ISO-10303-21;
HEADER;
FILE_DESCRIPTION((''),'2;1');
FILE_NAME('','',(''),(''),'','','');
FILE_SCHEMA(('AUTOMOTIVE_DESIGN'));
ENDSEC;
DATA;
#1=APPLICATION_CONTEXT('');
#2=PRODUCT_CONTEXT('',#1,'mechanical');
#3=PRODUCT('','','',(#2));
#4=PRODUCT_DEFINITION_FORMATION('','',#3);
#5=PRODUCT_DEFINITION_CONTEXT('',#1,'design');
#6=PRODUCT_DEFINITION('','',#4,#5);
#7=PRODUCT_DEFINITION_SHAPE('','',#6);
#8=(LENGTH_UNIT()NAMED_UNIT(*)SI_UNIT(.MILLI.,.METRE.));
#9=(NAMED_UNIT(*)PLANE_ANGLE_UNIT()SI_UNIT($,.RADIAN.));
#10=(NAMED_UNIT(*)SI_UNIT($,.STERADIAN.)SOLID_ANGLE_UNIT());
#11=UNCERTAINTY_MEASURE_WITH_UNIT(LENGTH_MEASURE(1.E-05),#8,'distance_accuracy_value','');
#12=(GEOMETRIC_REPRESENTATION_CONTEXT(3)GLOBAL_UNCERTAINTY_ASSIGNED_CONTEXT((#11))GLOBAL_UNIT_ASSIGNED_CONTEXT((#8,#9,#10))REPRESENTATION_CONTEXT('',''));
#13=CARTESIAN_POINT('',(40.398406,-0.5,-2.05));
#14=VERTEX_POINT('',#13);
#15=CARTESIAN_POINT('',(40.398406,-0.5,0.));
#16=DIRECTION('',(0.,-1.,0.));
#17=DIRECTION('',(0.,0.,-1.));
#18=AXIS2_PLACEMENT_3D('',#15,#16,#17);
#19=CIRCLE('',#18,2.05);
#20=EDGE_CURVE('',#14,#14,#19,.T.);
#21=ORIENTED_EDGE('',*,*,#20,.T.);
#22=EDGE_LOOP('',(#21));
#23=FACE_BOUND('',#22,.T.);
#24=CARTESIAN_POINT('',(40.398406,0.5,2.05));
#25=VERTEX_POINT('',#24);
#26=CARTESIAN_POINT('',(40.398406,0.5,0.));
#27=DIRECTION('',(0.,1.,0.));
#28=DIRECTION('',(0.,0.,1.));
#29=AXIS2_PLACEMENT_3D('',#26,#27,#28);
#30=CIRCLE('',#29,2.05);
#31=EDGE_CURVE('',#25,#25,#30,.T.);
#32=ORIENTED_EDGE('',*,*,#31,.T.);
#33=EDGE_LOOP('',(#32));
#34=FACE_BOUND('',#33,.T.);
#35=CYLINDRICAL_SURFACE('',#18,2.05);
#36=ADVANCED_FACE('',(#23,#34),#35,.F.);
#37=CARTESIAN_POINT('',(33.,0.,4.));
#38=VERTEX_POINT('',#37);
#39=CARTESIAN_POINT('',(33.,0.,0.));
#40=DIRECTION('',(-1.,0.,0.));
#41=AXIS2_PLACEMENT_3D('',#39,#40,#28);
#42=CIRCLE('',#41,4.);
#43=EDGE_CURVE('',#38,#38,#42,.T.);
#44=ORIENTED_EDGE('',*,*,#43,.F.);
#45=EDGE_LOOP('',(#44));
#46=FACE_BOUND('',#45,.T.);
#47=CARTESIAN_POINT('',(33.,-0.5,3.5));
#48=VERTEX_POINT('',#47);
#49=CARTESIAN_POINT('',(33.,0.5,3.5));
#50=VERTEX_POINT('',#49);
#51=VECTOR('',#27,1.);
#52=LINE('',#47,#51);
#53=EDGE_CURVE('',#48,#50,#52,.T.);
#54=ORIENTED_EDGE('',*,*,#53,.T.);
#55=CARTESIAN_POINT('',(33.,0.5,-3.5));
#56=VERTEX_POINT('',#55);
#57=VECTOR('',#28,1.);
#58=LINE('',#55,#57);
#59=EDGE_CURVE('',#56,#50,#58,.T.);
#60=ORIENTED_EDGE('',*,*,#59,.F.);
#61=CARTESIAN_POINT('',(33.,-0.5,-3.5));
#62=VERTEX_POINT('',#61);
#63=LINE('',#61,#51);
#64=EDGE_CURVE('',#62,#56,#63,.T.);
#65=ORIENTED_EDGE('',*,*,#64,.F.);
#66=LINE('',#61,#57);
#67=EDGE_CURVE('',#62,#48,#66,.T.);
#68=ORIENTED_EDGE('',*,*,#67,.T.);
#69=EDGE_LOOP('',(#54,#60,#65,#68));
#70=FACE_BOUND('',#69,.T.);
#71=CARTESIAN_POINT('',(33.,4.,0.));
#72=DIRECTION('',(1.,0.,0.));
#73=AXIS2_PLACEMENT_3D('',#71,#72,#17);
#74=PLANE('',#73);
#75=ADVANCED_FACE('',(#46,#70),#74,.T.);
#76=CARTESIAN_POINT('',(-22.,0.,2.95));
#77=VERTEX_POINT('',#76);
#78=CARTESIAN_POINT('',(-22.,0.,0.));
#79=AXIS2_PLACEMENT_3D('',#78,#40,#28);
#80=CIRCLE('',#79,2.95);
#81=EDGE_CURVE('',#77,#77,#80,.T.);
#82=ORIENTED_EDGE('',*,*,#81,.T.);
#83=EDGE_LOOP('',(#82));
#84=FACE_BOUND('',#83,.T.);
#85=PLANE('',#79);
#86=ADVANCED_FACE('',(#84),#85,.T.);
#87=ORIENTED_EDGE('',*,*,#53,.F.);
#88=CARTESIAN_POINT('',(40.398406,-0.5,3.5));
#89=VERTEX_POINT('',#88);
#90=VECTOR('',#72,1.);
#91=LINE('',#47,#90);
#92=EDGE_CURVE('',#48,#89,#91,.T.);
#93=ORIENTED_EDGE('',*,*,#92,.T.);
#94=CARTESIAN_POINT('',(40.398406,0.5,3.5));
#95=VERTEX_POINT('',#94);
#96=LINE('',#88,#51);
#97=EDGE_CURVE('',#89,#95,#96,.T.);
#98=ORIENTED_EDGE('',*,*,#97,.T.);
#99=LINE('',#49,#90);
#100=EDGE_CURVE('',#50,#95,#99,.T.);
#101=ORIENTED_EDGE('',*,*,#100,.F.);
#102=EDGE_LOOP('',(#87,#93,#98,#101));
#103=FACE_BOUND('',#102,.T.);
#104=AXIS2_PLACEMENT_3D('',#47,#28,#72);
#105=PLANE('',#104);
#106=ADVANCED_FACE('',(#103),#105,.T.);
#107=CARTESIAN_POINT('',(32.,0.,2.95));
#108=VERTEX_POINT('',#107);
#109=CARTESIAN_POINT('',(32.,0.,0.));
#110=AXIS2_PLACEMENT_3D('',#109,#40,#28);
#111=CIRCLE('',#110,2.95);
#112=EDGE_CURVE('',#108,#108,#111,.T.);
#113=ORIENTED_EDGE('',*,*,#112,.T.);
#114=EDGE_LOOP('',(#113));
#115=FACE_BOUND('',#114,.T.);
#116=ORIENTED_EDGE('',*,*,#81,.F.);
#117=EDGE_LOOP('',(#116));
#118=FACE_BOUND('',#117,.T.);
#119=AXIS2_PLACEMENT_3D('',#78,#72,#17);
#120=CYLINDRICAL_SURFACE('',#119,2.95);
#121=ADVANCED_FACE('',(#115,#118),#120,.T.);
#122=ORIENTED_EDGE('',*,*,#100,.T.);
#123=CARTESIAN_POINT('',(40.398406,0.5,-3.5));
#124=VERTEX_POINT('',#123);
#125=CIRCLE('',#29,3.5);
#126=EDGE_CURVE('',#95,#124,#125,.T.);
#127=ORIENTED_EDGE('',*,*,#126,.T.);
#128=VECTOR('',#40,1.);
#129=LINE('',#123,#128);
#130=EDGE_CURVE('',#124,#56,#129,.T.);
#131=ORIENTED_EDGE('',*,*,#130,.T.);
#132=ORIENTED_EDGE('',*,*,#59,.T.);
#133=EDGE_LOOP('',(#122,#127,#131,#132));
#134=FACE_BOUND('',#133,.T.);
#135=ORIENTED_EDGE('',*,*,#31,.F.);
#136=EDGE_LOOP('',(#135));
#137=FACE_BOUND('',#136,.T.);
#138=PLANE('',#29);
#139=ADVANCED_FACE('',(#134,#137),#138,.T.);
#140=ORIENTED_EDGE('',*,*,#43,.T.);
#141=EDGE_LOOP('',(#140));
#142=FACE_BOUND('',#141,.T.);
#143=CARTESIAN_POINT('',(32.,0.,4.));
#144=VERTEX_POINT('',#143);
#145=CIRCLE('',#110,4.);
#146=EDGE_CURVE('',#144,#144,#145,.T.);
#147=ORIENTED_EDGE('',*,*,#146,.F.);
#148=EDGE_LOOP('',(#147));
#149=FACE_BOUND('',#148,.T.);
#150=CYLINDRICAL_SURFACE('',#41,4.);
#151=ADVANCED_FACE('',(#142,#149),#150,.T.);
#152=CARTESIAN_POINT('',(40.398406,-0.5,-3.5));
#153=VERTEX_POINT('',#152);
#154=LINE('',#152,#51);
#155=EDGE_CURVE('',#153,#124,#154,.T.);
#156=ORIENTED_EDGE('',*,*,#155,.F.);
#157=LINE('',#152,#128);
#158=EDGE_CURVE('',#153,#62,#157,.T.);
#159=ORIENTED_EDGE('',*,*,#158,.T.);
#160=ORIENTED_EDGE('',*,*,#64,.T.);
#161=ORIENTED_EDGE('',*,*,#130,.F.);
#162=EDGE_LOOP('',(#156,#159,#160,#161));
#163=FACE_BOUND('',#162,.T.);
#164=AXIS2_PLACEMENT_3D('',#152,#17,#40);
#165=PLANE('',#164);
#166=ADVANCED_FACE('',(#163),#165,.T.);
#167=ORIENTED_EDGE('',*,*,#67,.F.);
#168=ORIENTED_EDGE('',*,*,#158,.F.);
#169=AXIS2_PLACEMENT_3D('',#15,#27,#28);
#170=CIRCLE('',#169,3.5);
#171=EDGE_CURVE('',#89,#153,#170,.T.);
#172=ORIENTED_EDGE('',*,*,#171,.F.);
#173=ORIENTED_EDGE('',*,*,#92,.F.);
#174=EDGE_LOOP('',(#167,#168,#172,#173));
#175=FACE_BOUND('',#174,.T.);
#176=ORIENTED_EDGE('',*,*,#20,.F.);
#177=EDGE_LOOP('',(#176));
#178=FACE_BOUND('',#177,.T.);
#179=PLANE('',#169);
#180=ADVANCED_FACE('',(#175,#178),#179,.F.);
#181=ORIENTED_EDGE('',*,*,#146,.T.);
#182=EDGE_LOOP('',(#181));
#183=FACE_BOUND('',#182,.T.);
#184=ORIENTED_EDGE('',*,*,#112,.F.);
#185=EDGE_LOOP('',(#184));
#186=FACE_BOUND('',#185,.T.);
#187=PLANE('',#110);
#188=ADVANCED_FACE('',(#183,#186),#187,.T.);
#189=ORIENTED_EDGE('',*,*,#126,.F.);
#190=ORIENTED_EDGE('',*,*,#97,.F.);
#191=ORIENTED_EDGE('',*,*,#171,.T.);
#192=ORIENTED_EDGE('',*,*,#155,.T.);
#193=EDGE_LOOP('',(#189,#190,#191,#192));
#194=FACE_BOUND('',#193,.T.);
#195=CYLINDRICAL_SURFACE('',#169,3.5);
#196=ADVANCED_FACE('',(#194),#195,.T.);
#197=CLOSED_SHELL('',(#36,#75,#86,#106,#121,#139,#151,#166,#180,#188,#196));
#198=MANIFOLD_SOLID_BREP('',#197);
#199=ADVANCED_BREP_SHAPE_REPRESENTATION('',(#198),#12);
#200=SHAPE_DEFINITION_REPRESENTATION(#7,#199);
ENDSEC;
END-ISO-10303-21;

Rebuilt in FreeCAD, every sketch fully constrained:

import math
import FreeCAD as App
import Part
import Sketcher
from FreeCAD import Vector
Q = App.Units.Quantity

doc = App.newDocument("Part")
body = doc.addObject("PartDesign::Body", "Body")

# Sketch on XY plane
sketch1 = body.newObject("Sketcher::SketchObject", "Sketch")
sketch1.AttachmentSupport = (doc.getObject("XY_Plane"), [""])
sketch1.MapMode = "FlatFace"
sketch1.addGeometry([
    Part.LineSegment(Vector(33, 4, 0), Vector(33, 0, 0)),
    Part.LineSegment(Vector(33, 0, 0), Vector(32, 0, 0)),
    Part.LineSegment(Vector(32, 0, 0), Vector(32, 4, 0)),
    Part.LineSegment(Vector(32, 4, 0), Vector(33, 4, 0)),
], False)
sketch1.addConstraint([
    Sketcher.Constraint("Coincident", 0, 2, 1, 1),
    Sketcher.Constraint("Coincident", 1, 2, 2, 1),
    Sketcher.Constraint("Coincident", 2, 2, 3, 1),
    Sketcher.Constraint("Coincident", 3, 2, 0, 1),
    Sketcher.Constraint("Vertical", 0),
    Sketcher.Constraint("Horizontal", 1),
    Sketcher.Constraint("Vertical", 2),
    Sketcher.Constraint("Horizontal", 3),
    Sketcher.Constraint("PointOnObject", 0, 2, -1),
    Sketcher.Constraint("DistanceX", 1, 2, 1, 1, Q("1 mm")),
    Sketcher.Constraint("DistanceY", 0, 2, 0, 1, Q("4 mm")),
    Sketcher.Constraint("DistanceX", -1, 1, 0, 2, Q("33 mm")),
])
revolution = body.newObject("PartDesign::Revolution", "Revolution")
revolution.Profile = sketch1
revolution.ReferenceAxis = (sketch1, ["H_Axis"])
revolution.Angle = 360

# Sketch on XZ plane
sketch2 = body.newObject("Sketcher::SketchObject", "Sketch001")
sketch2.AttachmentSupport = (doc.getObject("XZ_Plane"), [""])
sketch2.MapMode = "FlatFace"
sketch2.AttachmentOffset = App.Placement(Vector(0, 0, -0.5), App.Rotation())
sketch2.addGeometry([
    Part.LineSegment(Vector(33, -3.5, 0), Vector(33, 3.5, 0)),
    Part.LineSegment(Vector(33, 3.5, 0), Vector(40.4, 3.5, 0)),
    Part.ArcOfCircle(Part.Circle(Vector(40.4, 0, 0), Vector(0, 0, 1), 3.5), math.radians(-90), math.radians(90)),
    Part.LineSegment(Vector(40.4, -3.5, 0), Vector(33, -3.5, 0)),
], False)
sketch2.addConstraint([
    Sketcher.Constraint("Coincident", 0, 2, 1, 1),
    Sketcher.Constraint("Tangent", 1, 2, 2, 2),
    Sketcher.Constraint("Tangent", 2, 1, 3, 1),
    Sketcher.Constraint("Coincident", 3, 2, 0, 1),
    Sketcher.Constraint("Vertical", 0),
    Sketcher.Constraint("Horizontal", 1),
    Sketcher.Constraint("Horizontal", 3),
    Sketcher.Constraint("PointOnObject", 2, 3, -1),
    Sketcher.Constraint("Radius", 2, Q("3.5 mm")),
    Sketcher.Constraint("DistanceX", -1, 1, 0, 2, Q("33 mm")),
    Sketcher.Constraint("DistanceX", 1, 1, 1, 2, Q("7.398406 mm")),
])
pad1 = body.newObject("PartDesign::Pad", "Pad")
pad1.Profile = sketch2
pad1.Length = 1

# Sketch on YZ plane
sketch3 = body.newObject("Sketcher::SketchObject", "Sketch002")
sketch3.AttachmentSupport = (doc.getObject("YZ_Plane"), [""])
sketch3.MapMode = "FlatFace"
sketch3.AttachmentOffset = App.Placement(Vector(0, 0, 32), App.Rotation())
sketch3.addGeometry(Part.Circle(Vector(0, 0, 0), Vector(0, 0, 1), 3), False)
sketch3.addConstraint([
    Sketcher.Constraint("Coincident", 0, 3, -1, 1),
    Sketcher.Constraint("Diameter", 0, Q("5.9 mm")),
])
pad2 = body.newObject("PartDesign::Pad", "Pad001")
pad2.Profile = sketch3
pad2.Length = 54
pad2.Reversed = True

# Sketch on XZ plane
sketch4 = body.newObject("Sketcher::SketchObject", "Sketch003")
sketch4.AttachmentSupport = (doc.getObject("XZ_Plane"), [""])
sketch4.MapMode = "FlatFace"
sketch4.AttachmentOffset = App.Placement(Vector(0, 0, 0.5), App.Rotation())
sketch4.addGeometry(Part.Circle(Vector(40.4, 0, 0), Vector(0, 0, 1), 2), False)
sketch4.addConstraint([
    Sketcher.Constraint("PointOnObject", 0, 3, -1),
    Sketcher.Constraint("Diameter", 0, Q("4.1 mm")),
    Sketcher.Constraint("DistanceX", -1, 1, 0, 3, Q("40.398406 mm")),
])
doc.recompute()
hole = body.newObject("PartDesign::Hole", "Hole")
hole.Profile = sketch4
hole.ThreadType = "None"
hole.Diameter = 4.1
hole.DepthType = "ThroughAll"

doc.recompute()
